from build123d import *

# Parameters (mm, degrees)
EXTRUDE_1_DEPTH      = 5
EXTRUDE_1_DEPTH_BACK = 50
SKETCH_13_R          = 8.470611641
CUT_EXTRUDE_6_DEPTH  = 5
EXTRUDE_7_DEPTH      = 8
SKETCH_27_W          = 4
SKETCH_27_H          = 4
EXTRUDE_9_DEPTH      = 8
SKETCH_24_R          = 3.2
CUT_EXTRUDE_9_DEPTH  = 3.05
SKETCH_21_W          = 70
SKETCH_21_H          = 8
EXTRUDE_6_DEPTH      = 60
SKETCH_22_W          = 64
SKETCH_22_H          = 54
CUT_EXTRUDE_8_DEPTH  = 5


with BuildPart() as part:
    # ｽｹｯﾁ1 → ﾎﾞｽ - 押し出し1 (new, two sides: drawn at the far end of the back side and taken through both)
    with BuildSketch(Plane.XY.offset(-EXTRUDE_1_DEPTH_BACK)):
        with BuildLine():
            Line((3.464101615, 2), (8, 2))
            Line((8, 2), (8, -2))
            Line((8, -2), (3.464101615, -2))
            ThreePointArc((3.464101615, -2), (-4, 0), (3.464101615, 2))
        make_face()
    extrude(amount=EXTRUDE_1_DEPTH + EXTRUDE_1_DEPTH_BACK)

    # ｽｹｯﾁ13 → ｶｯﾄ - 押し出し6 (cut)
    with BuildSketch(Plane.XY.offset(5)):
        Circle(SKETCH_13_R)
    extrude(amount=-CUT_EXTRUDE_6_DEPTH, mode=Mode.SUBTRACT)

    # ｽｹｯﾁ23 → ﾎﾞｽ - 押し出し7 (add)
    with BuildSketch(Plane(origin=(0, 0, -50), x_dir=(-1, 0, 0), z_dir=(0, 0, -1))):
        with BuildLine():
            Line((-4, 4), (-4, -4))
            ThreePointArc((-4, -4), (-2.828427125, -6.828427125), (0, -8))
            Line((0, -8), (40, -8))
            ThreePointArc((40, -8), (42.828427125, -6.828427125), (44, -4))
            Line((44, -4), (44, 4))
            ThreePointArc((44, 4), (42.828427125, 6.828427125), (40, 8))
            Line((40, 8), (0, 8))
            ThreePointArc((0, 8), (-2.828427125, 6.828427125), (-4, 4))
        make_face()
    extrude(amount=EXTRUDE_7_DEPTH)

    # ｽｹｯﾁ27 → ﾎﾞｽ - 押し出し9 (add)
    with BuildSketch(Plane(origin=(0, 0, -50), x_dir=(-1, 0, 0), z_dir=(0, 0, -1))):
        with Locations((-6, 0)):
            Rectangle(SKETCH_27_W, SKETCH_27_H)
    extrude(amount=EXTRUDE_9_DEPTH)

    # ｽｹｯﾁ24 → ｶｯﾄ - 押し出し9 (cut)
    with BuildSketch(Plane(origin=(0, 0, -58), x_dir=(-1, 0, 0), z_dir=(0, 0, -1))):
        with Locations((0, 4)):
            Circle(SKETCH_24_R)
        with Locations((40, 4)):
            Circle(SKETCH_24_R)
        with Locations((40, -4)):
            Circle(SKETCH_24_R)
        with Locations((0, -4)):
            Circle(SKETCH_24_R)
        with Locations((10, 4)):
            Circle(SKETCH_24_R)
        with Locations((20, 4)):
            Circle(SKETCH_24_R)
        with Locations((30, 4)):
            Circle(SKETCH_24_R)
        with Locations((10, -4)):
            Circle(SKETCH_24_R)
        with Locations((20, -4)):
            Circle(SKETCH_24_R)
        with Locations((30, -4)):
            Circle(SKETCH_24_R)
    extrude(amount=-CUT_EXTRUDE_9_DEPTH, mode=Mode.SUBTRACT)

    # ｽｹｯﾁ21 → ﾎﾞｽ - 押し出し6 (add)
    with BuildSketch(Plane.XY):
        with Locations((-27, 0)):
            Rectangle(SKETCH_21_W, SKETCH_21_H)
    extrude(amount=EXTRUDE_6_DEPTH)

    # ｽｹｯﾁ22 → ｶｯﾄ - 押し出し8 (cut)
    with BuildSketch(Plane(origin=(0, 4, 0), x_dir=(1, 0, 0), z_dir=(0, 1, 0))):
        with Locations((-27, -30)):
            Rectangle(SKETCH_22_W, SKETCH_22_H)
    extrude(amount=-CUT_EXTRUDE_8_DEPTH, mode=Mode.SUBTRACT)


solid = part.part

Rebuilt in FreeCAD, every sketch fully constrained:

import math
import FreeCAD as App
import Part
import Sketcher
Q = App.Units.Quantity


def add_polygon(sketch, points):
    """Adds a closed chain of lines whose ends are joined by coincident constraints."""
    first, n = sketch.GeometryCount, len(points)
    for a, b in zip(points, points[1:] + points[:1]):
        sketch.addGeometry(Part.LineSegment(App.Vector(*a, 0), App.Vector(*b, 0)), False)
    for i in range(n):
        sketch.addConstraint(Sketcher.Constraint("Coincident", first + i, 2, first + (i + 1) % n, 1))

doc = App.newDocument("Part")
params = doc.addObject("Spreadsheet::Sheet", "Params")
for row, (alias, value) in enumerate([
    ("sketch1_radius", "4 mm"),
    ("sketch1_height", "4 mm"),
    ("pad1_length", "5 mm"),
    ("pad1_length2", "50 mm"),
    ("pocket1_length", "5 mm"),
    ("sketch3_radius", "4 mm"),
    ("sketch3_width", "40 mm"),
    ("sketch3_height", "8 mm"),
    ("pad2_length", "8 mm"),
    ("sketch4_width", "4 mm"),
    ("pad3_length", "8 mm"),
    ("sketch5_diameter", "6.4 mm"),
    ("pocket2_length", "3.05 mm"),
    ("sketch6_width", "70 mm"),
    ("sketch6_height", "8 mm"),
    ("pad4_length", "60 mm"),
    ("sketch7_width", "64 mm"),
    ("sketch7_height", "54 mm"),
    ("pocket3_length", "5 mm"),
], start=1):
    params.set(f"A{row}", alias)
    params.set(f"B{row}", "=" + value)
    params.setAlias(f"B{row}", alias)

body = doc.addObject("PartDesign::Body", "Body")

sketch1 = body.newObject("Sketcher::SketchObject", "Sketch")
sketch1.AttachmentSupport = (doc.getObject("XY_Plane"), [""])
sketch1.MapMode = "FlatFace"
sketch1.addGeometry(Part.LineSegment(App.Vector(8, 2, 0), App.Vector(3.5, 2, 0)), False)
sketch1.addGeometry(Part.ArcOfCircle(Part.Circle(App.Vector(0, 0, 0), App.Vector(0, 0, 1), 4), math.radians(30), math.radians(330)), False)
sketch1.addGeometry(Part.LineSegment(App.Vector(3.5, -2, 0), App.Vector(8, -2, 0)), False)
sketch1.addGeometry(Part.LineSegment(App.Vector(8, -2, 0), App.Vector(8, 2, 0)), False)
sketch1.addConstraint(Sketcher.Constraint("Coincident", 0, 2, 1, 1))
sketch1.addConstraint(Sketcher.Constraint("Coincident", 1, 2, 2, 1))
sketch1.addConstraint(Sketcher.Constraint("Coincident", 2, 2, 3, 1))
sketch1.addConstraint(Sketcher.Constraint("Coincident", 3, 2, 0, 1))
sketch1.addConstraint(Sketcher.Constraint("Horizontal", 0))
sketch1.addConstraint(Sketcher.Constraint("Horizontal", 2))
sketch1.addConstraint(Sketcher.Constraint("Vertical", 3))
sketch1.addConstraint(Sketcher.Constraint("Coincident", 1, 3, -1, 1))
sketch1.addConstraint(Sketcher.Constraint("Vertical", 0, 2, 1, 2))
sketch1.addConstraint(Sketcher.Constraint("Radius", 1, Q("4 mm")))
sketch1.addConstraint(Sketcher.Constraint("DistanceY", 3, 1, 3, 2, Q("4 mm")))
sketch1.addConstraint(Sketcher.Constraint("DistanceX", -1, 1, 2, 2, Q("8 mm")))
sketch1.setExpression("Constraints[9]", "Params.sketch1_radius")
sketch1.setExpression("Constraints[10]", "Params.sketch1_height")
pad1 = body.newObject("PartDesign::Pad", "Pad")
pad1.Profile = sketch1
pad1.Type = "TwoLengths"
pad1.setExpression("Length", "Params.pad1_length")
pad1.setExpression("Length2", "Params.pad1_length2")

sketch2 = body.newObject("Sketcher::SketchObject", "Sketch001")
sketch2.AttachmentSupport = (doc.getObject("XY_Plane"), [""])
sketch2.MapMode = "FlatFace"
sketch2.AttachmentOffset = App.Placement(App.Vector(0, 0, 5), App.Rotation())
sketch2.addGeometry(Part.Circle(App.Vector(0, 0, 0), App.Vector(0, 0, 1), 8), False)
sketch2.addConstraint(Sketcher.Constraint("Coincident", 0, 3, -1, 1))
sketch2.addConstraint(Sketcher.Constraint("Diameter", 0, Q("16.941223 mm")))
pocket1 = body.newObject("PartDesign::Pocket", "Pocket")
pocket1.Profile = sketch2
pocket1.setExpression("Length", "Params.pocket1_length")

sketch3 = body.newObject("Sketcher::SketchObject", "Sketch002")
sketch3.AttachmentSupport = (doc.getObject("XY_Plane"), [""])
sketch3.MapMode = "FlatFace"
sketch3.AttachmentOffset = App.Placement(App.Vector(0, 0, -50), App.Rotation())
sketch3.addGeometry(Part.LineSegment(App.Vector(4, 4, 0), App.Vector(4, -4, 0)), False)
sketch3.addGeometry(Part.ArcOfCircle(Part.Circle(App.Vector(0, -4, 0), App.Vector(0, 0, 1), 4), math.radians(-90), math.radians(0)), False)
sketch3.addGeometry(Part.LineSegment(App.Vector(0, -8, 0), App.Vector(-40, -8, 0)), False)
sketch3.addGeometry(Part.ArcOfCircle(Part.Circle(App.Vector(-40, -4, 0), App.Vector(0, 0, 1), 4), math.radians(180), math.radians(270)), False)
sketch3.addGeometry(Part.LineSegment(App.Vector(-44, -4, 0), App.Vector(-44, 4, 0)), False)
sketch3.addGeometry(Part.ArcOfCircle(Part.Circle(App.Vector(-40, 4, 0), App.Vector(0, 0, 1), 4), math.radians(90), math.radians(180)), False)
sketch3.addGeometry(Part.LineSegment(App.Vector(-40, 8, 0), App.Vector(0, 8, 0)), False)
sketch3.addGeometry(Part.ArcOfCircle(Part.Circle(App.Vector(0, 4, 0), App.Vector(0, 0, 1), 4), math.radians(0), math.radians(90)), False)
sketch3.addConstraint(Sketcher.Constraint("Tangent", 0, 2, 1, 2))
sketch3.addConstraint(Sketcher.Constraint("Tangent", 1, 1, 2, 1))
sketch3.addConstraint(Sketcher.Constraint("Tangent", 2, 2, 3, 2))
sketch3.addConstraint(Sketcher.Constraint("Tangent", 3, 1, 4, 1))
sketch3.addConstraint(Sketcher.Constraint("Tangent", 4, 2, 5, 2))
sketch3.addConstraint(Sketcher.Constraint("Tangent", 5, 1, 6, 1))
sketch3.addConstraint(Sketcher.Constraint("Tangent", 6, 2, 7, 2))
sketch3.addConstraint(Sketcher.Constraint("Tangent", 7, 1, 0, 1))
sketch3.addConstraint(Sketcher.Constraint("Vertical", 0))
sketch3.addConstraint(Sketcher.Constraint("Horizontal", 2))
sketch3.addConstraint(Sketcher.Constraint("Vertical", 4))
sketch3.addConstraint(Sketcher.Constraint("Horizontal", 6))
sketch3.addConstraint(Sketcher.Constraint("Equal", 1, 3))
sketch3.addConstraint(Sketcher.Constraint("Equal", 3, 5))
sketch3.addConstraint(Sketcher.Constraint("Equal", 5, 7))
sketch3.addConstraint(Sketcher.Constraint("Symmetric", 1, 3, 7, 3, -1, 1))
sketch3.addConstraint(Sketcher.Constraint("Radius", 1, Q("4 mm")))
sketch3.addConstraint(Sketcher.Constraint("DistanceX", 2, 2, 2, 1, Q("40 mm")))
sketch3.addConstraint(Sketcher.Constraint("DistanceY", 0, 2, 0, 1, Q("8 mm")))
sketch3.setExpression("Constraints[16]", "Params.sketch3_radius")
sketch3.setExpression("Constraints[17]", "Params.sketch3_width")
sketch3.setExpression("Constraints[18]", "Params.sketch3_height")
pad2 = body.newObject("PartDesign::Pad", "Pad001")
pad2.Profile = sketch3
pad2.setExpression("Length", "Params.pad2_length")
pad2.Reversed = True

sketch4 = body.newObject("Sketcher::SketchObject", "Sketch003")
sketch4.AttachmentSupport = (doc.getObject("XY_Plane"), [""])
sketch4.MapMode = "FlatFace"
sketch4.AttachmentOffset = App.Placement(App.Vector(0, 0, -50), App.Rotation())
add_polygon(sketch4, [(8, 2), (8, -2), (4, -2), (4, 2)])
sketch4.addConstraint(Sketcher.Constraint("Vertical", 0))
sketch4.addConstraint(Sketcher.Constraint("Horizontal", 1))
sketch4.addConstraint(Sketcher.Constraint("Vertical", 2))
sketch4.addConstraint(Sketcher.Constraint("Horizontal", 3))
sketch4.addConstraint(Sketcher.Constraint("Equal", 3, 0))
sketch4.addConstraint(Sketcher.Constraint("DistanceX", 1, 2, 1, 1, Q("4 mm")))
sketch4.addConstraint(Sketcher.Constraint("DistanceX", -1, 1, 0, 2, Q("8 mm")))
sketch4.addConstraint(Sketcher.Constraint("DistanceY", 0, 2, -1, 1, Q("2 mm")))
sketch4.setExpression("Constraints[9]", "Params.sketch4_width")
pad3 = body.newObject("PartDesign::Pad", "Pad002")
pad3.Profile = sketch4
pad3.setExpression("Length", "Params.pad3_length")
pad3.Reversed = True

sketch5 = body.newObject("Sketcher::SketchObject", "Sketch004")
sketch5.AttachmentSupport = (doc.getObject("XY_Plane"), [""])
sketch5.MapMode = "FlatFace"
sketch5.AttachmentOffset = App.Placement(App.Vector(0, 0, -58), App.Rotation())
sketch5.addGeometry(Part.Circle(App.Vector(0, 4, 0), App.Vector(0, 0, 1), 3.2), False)
sketch5.addGeometry(Part.Circle(App.Vector(-40, 4, 0), App.Vector(0, 0, 1), 3.2), False)
sketch5.addGeometry(Part.Circle(App.Vector(-40, -4, 0), App.Vector(0, 0, 1), 3.2), False)
sketch5.addGeometry(Part.Circle(App.Vector(0, -4, 0), App.Vector(0, 0, 1), 3.2), False)
sketch5.addGeometry(Part.Circle(App.Vector(-10, 4, 0), App.Vector(0, 0, 1), 3.2), False)
sketch5.addGeometry(Part.Circle(App.Vector(-20, 4, 0), App.Vector(0, 0, 1), 3.2), False)
sketch5.addGeometry(Part.Circle(App.Vector(-30, 4, 0), App.Vector(0, 0, 1), 3.2), False)
sketch5.addGeometry(Part.Circle(App.Vector(-10, -4, 0), App.Vector(0, 0, 1), 3.2), False)
sketch5.addGeometry(Part.Circle(App.Vector(-20, -4, 0), App.Vector(0, 0, 1), 3.2), False)
sketch5.addGeometry(Part.Circle(App.Vector(-30, -4, 0), App.Vector(0, 0, 1), 3.2), False)
sketch5.addConstraint(Sketcher.Constraint("Equal", 0, 1))
sketch5.addConstraint(Sketcher.Constraint("Equal", 1, 2))
sketch5.addConstraint(Sketcher.Constraint("Equal", 2, 3))
sketch5.addConstraint(Sketcher.Constraint("Equal", 3, 4))
sketch5.addConstraint(Sketcher.Constraint("Equal", 4, 5))
sketch5.addConstraint(Sketcher.Constraint("Equal", 5, 6))
sketch5.addConstraint(Sketcher.Constraint("Equal", 6, 7))
sketch5.addConstraint(Sketcher.Constraint("Equal", 7, 8))
sketch5.addConstraint(Sketcher.Constraint("Equal", 8, 9))
sketch5.addConstraint(Sketcher.Constraint("Symmetric", 0, 3, 3, 3, -1, 1))
sketch5.addConstraint(Sketcher.Constraint("Symmetric", 1, 3, 2, 3, -1))
sketch5.addConstraint(Sketcher.Constraint("Symmetric", 4, 3, 7, 3, -1))
sketch5.addConstraint(Sketcher.Constraint("Symmetric", 5, 3, 8, 3, -1))
sketch5.addConstraint(Sketcher.Constraint("Symmetric", 6, 3, 9, 3, -1))
sketch5.addConstraint(Sketcher.Constraint("PointOnObject", 0, 3, -2))
sketch5.addConstraint(Sketcher.Constraint("Horizontal", 0, 3, 1, 3))
sketch5.addConstraint(Sketcher.Constraint("Horizontal", 1, 3, 4, 3))
sketch5.addConstraint(Sketcher.Constraint("Horizontal", 4, 3, 5, 3))
sketch5.addConstraint(Sketcher.Constraint("Horizontal", 5, 3, 6, 3))
sketch5.addConstraint(Sketcher.Constraint("Diameter", 0, Q("6.4 mm")))
sketch5.addConstraint(Sketcher.Constraint("DistanceY", -1, 1, 0, 3, Q("4 mm")))
sketch5.addConstraint(Sketcher.Constraint("DistanceX", 1, 3, -1, 1, Q("40 mm")))
sketch5.addConstraint(Sketcher.Constraint("DistanceX", 4, 3, -1, 1, Q("10 mm")))
sketch5.addConstraint(Sketcher.Constraint("DistanceX", 5, 3, -1, 1, Q("20 mm")))
sketch5.addConstraint(Sketcher.Constraint("DistanceX", 6, 3, -1, 1, Q("30 mm")))
sketch5.setExpression("Constraints[19]", "Params.sketch5_diameter")
pocket2 = body.newObject("PartDesign::Pocket", "Pocket001")
pocket2.Profile = sketch5
pocket2.setExpression("Length", "Params.pocket2_length")
pocket2.Reversed = True

sketch6 = body.newObject("Sketcher::SketchObject", "Sketch005")
sketch6.AttachmentSupport = (doc.getObject("XY_Plane"), [""])
sketch6.MapMode = "FlatFace"
add_polygon(sketch6, [(-62, 4), (-62, -4), (8, -4), (8, 4)])
sketch6.addConstraint(Sketcher.Constraint("Vertical", 0))
sketch6.addConstraint(Sketcher.Constraint("Horizontal", 1))
sketch6.addConstraint(Sketcher.Constraint("Vertical", 2))
sketch6.addConstraint(Sketcher.Constraint("Horizontal", 3))
sketch6.addConstraint(Sketcher.Constraint("DistanceX", 1, 1, 1, 2, Q("70 mm")))
sketch6.addConstraint(Sketcher.Constraint("DistanceY", 0, 2, 0, 1, Q("8 mm")))
sketch6.addConstraint(Sketcher.Constraint("DistanceX", 0, 2, -1, 1, Q("62 mm")))
sketch6.addConstraint(Sketcher.Constraint("DistanceY", 0, 2, -1, 1, Q("4 mm")))
sketch6.setExpression("Constraints[8]", "Params.sketch6_width")
sketch6.setExpression("Constraints[9]", "Params.sketch6_height")
pad4 = body.newObject("PartDesign::Pad", "Pad003")
pad4.Profile = sketch6
pad4.setExpression("Length", "Params.pad4_length")

sketch7 = body.newObject("Sketcher::SketchObject", "Sketch006")
sketch7.AttachmentSupport = (doc.getObject("XZ_Plane"), [""])
sketch7.MapMode = "FlatFace"
sketch7.AttachmentOffset = App.Placement(App.Vector(0, 0, -4), App.Rotation())
add_polygon(sketch7, [(-59, 3), (-59, 57), (5, 57), (5, 3)])
sketch7.addConstraint(Sketcher.Constraint("Vertical", 0))
sketch7.addConstraint(Sketcher.Constraint("Horizontal", 1))
sketch7.addConstraint(Sketcher.Constraint("Vertical", 2))
sketch7.addConstraint(Sketcher.Constraint("Horizontal", 3))
sketch7.addConstraint(Sketcher.Constraint("DistanceX", 1, 1, 1, 2, Q("64 mm")))
sketch7.addConstraint(Sketcher.Constraint("DistanceY", 0, 1, 0, 2, Q("54 mm")))
sketch7.addConstraint(Sketcher.Constraint("DistanceX", 0, 2, -1, 1, Q("59 mm")))
sketch7.addConstraint(Sketcher.Constraint("DistanceY", -1, 1, 0, 2, Q("57 mm")))
sketch7.setExpression("Constraints[8]", "Params.sketch7_width")
sketch7.setExpression("Constraints[9]", "Params.sketch7_height")
pocket3 = body.newObject("PartDesign::Pocket", "Pocket002")
pocket3.Profile = sketch7
pocket3.setExpression("Length", "Params.pocket3_length")
pocket3.Reversed = True

doc.recompute()
